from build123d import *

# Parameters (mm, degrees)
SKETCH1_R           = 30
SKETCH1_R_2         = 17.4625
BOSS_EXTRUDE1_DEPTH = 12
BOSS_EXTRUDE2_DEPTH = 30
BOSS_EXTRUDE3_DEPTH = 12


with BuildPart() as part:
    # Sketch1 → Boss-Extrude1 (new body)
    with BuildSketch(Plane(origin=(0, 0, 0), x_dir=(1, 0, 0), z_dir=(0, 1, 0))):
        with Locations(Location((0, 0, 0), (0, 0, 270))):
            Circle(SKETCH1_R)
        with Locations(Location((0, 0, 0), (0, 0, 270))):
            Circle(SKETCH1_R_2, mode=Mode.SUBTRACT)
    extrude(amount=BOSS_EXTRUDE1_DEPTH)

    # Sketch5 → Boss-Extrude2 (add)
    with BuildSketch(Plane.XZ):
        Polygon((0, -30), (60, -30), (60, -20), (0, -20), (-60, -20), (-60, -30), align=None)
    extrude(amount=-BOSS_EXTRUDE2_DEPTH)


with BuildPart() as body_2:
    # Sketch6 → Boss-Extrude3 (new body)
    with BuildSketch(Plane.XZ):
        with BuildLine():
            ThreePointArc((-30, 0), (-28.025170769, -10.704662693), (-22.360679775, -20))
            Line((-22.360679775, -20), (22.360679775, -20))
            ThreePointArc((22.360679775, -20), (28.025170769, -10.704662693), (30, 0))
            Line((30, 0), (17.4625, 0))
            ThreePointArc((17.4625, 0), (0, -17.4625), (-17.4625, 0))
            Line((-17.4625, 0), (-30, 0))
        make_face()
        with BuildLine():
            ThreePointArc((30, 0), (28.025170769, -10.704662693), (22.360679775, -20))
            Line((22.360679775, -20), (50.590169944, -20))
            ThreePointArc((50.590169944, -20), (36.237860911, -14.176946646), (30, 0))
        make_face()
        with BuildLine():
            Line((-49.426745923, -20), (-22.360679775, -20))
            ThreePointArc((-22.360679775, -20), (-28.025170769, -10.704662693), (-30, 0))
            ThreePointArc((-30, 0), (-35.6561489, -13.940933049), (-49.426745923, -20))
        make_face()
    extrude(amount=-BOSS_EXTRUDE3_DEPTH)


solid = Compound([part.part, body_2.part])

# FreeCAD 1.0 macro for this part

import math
import FreeCAD as App
import Part
import Sketcher

V = App.Vector
Q = App.Units.Quantity

doc = App.newDocument("Part")
params = doc.addObject("Spreadsheet::Sheet", "Params")
for row, (alias, value) in enumerate([
    ("sketch1_diameter", "60 mm"),
    ("pad1_length", "12 mm"),
    ("sketch2_width", "120 mm"),
    ("sketch2_height", "10 mm"),
    ("pad2_length", "30 mm"),
    ("pad3_length", "12 mm"),
], start=1):
    params.set(f"A{row}", alias)
    params.set(f"B{row}", "=" + value)
    params.setAlias(f"B{row}", alias)

body = doc.addObject("PartDesign::Body", "Body")

sketch1 = doc.addObject("Sketcher::SketchObject", "Sketch")
body.addObject(sketch1)
sketch1.AttachmentSupport = (doc.XZ_Plane, [""])
sketch1.MapMode = "FlatFace"
sketch1.addGeometry([
    Part.Circle(V(0, 0, 0), V(0, 0, 1), 30),
    Part.Circle(V(0, 0, 0), V(0, 0, 1), 17),
], False)
sketch1.addConstraint([
    Sketcher.Constraint("Coincident", 0, 3, -1, 1),
    Sketcher.Constraint("Coincident", 1, 3, -1, 1),
    Sketcher.Constraint("Diameter", 0, Q("60 mm")),
    Sketcher.Constraint("Diameter", 1, Q("34.925 mm")),
])
sketch1.setExpression("Constraints[2]", "Params.sketch1_diameter")
pad1 = doc.addObject("PartDesign::Pad", "Pad")
body.addObject(pad1)
pad1.Profile = sketch1
pad1.setExpression("Length", "Params.pad1_length")
pad1.Reversed = True

sketch2 = doc.addObject("Sketcher::SketchObject", "Sketch001")
body.addObject(sketch2)
sketch2.AttachmentSupport = (doc.XZ_Plane, [""])
sketch2.MapMode = "FlatFace"
sketch2.addGeometry([
    Part.LineSegment(V(60, -30, 0), V(60, -20, 0)),
    Part.LineSegment(V(60, -20, 0), V(-60, -20, 0)),
    Part.LineSegment(V(-60, -20, 0), V(-60, -30, 0)),
    Part.LineSegment(V(-60, -30, 0), V(60, -30, 0)),
], False)
sketch2.addConstraint([
    Sketcher.Constraint("Coincident", 0, 2, 1, 1),
    Sketcher.Constraint("Coincident", 1, 2, 2, 1),
    Sketcher.Constraint("Coincident", 2, 2, 3, 1),
    Sketcher.Constraint("Coincident", 3, 2, 0, 1),
    Sketcher.Constraint("Vertical", 0),
    Sketcher.Constraint("Horizontal", 1),
    Sketcher.Constraint("Vertical", 2),
    Sketcher.Constraint("Horizontal", 3),
    Sketcher.Constraint("DistanceX", 1, 2, 1, 1, Q("120 mm")),
    Sketcher.Constraint("DistanceY", 0, 1, 0, 2, Q("10 mm")),
    Sketcher.Constraint("DistanceX", -1, 1, 0, 2, Q("60 mm")),
    Sketcher.Constraint("DistanceY", 0, 2, -1, 1, Q("20 mm")),
])
sketch2.setExpression("Constraints[8]", "Params.sketch2_width")
sketch2.setExpression("Constraints[9]", "Params.sketch2_height")
pad2 = doc.addObject("PartDesign::Pad", "Pad001")
body.addObject(pad2)
pad2.Profile = sketch2
pad2.setExpression("Length", "Params.pad2_length")
pad2.Reversed = True
body2 = doc.addObject("PartDesign::Body", "Body001")

sketch3 = doc.addObject("Sketcher::SketchObject", "Sketch002")
body2.addObject(sketch3)
sketch3.AttachmentSupport = (doc.getObject("XZ_Plane001"), [""])
sketch3.MapMode = "FlatFace"
sketch3.addGeometry([
    Part.ArcOfCircle(Part.Circle(V(51, 1, 0), V(0, 0, 1), 21), math.radians(-178), math.radians(-90)),
    Part.LineSegment(V(30, 0, 0), V(17, 0, 0)),
    Part.ArcOfCircle(Part.Circle(V(0, 0, 0), V(0, 0, 1), 17), math.radians(180), math.radians(360)),
    Part.LineSegment(V(-17, 0, 0), V(-30, 0, 0)),
    Part.ArcOfCircle(Part.Circle(V(-50, 0, 0), V(0, 0, 1), 20), math.radians(-88), math.radians(0)),
    Part.LineSegment(V(-49, -20, 0), V(51, -20, 0)),
], False)
sketch3.addConstraint([
    Sketcher.Constraint("Coincident", 0, 1, 1, 1),
    Sketcher.Constraint("Coincident", 1, 2, 2, 2),
    Sketcher.Constraint("Coincident", 2, 1, 3, 1),
    Sketcher.Constraint("Coincident", 3, 2, 4, 2),
    Sketcher.Constraint("Coincident", 4, 1, 5, 1),
    Sketcher.Constraint("Tangent", 5, 2, 0, 2),
    Sketcher.Constraint("Horizontal", 1),
    Sketcher.Constraint("Horizontal", 3),
    Sketcher.Constraint("Horizontal", 5),
    Sketcher.Constraint("Coincident", 2, 3, -1, 1),
    Sketcher.Constraint("Symmetric", 0, 1, 3, 2, -1, 1),
    Sketcher.Constraint("PointOnObject", 4, 3, -1),
    Sketcher.Constraint("PointOnObject", 0, 1, -1),
    Sketcher.Constraint("DistanceX", -1, 1, 0, 1, Q("30 mm")),
    Sketcher.Constraint("DistanceY", 4, 1, -1, 1, Q("20 mm")),
    Sketcher.Constraint("Radius", 2, Q("17.4625 mm")),
    Sketcher.Constraint("Radius", 0, Q("20.598877 mm")),
    Sketcher.Constraint("Radius", 4, Q("20.008458 mm")),
])
pad3 = doc.addObject("PartDesign::Pad", "Pad002")
body2.addObject(pad3)
pad3.Profile = sketch3
pad3.setExpression("Length", "Params.pad3_length")
pad3.Reversed = True

doc.recompute()
